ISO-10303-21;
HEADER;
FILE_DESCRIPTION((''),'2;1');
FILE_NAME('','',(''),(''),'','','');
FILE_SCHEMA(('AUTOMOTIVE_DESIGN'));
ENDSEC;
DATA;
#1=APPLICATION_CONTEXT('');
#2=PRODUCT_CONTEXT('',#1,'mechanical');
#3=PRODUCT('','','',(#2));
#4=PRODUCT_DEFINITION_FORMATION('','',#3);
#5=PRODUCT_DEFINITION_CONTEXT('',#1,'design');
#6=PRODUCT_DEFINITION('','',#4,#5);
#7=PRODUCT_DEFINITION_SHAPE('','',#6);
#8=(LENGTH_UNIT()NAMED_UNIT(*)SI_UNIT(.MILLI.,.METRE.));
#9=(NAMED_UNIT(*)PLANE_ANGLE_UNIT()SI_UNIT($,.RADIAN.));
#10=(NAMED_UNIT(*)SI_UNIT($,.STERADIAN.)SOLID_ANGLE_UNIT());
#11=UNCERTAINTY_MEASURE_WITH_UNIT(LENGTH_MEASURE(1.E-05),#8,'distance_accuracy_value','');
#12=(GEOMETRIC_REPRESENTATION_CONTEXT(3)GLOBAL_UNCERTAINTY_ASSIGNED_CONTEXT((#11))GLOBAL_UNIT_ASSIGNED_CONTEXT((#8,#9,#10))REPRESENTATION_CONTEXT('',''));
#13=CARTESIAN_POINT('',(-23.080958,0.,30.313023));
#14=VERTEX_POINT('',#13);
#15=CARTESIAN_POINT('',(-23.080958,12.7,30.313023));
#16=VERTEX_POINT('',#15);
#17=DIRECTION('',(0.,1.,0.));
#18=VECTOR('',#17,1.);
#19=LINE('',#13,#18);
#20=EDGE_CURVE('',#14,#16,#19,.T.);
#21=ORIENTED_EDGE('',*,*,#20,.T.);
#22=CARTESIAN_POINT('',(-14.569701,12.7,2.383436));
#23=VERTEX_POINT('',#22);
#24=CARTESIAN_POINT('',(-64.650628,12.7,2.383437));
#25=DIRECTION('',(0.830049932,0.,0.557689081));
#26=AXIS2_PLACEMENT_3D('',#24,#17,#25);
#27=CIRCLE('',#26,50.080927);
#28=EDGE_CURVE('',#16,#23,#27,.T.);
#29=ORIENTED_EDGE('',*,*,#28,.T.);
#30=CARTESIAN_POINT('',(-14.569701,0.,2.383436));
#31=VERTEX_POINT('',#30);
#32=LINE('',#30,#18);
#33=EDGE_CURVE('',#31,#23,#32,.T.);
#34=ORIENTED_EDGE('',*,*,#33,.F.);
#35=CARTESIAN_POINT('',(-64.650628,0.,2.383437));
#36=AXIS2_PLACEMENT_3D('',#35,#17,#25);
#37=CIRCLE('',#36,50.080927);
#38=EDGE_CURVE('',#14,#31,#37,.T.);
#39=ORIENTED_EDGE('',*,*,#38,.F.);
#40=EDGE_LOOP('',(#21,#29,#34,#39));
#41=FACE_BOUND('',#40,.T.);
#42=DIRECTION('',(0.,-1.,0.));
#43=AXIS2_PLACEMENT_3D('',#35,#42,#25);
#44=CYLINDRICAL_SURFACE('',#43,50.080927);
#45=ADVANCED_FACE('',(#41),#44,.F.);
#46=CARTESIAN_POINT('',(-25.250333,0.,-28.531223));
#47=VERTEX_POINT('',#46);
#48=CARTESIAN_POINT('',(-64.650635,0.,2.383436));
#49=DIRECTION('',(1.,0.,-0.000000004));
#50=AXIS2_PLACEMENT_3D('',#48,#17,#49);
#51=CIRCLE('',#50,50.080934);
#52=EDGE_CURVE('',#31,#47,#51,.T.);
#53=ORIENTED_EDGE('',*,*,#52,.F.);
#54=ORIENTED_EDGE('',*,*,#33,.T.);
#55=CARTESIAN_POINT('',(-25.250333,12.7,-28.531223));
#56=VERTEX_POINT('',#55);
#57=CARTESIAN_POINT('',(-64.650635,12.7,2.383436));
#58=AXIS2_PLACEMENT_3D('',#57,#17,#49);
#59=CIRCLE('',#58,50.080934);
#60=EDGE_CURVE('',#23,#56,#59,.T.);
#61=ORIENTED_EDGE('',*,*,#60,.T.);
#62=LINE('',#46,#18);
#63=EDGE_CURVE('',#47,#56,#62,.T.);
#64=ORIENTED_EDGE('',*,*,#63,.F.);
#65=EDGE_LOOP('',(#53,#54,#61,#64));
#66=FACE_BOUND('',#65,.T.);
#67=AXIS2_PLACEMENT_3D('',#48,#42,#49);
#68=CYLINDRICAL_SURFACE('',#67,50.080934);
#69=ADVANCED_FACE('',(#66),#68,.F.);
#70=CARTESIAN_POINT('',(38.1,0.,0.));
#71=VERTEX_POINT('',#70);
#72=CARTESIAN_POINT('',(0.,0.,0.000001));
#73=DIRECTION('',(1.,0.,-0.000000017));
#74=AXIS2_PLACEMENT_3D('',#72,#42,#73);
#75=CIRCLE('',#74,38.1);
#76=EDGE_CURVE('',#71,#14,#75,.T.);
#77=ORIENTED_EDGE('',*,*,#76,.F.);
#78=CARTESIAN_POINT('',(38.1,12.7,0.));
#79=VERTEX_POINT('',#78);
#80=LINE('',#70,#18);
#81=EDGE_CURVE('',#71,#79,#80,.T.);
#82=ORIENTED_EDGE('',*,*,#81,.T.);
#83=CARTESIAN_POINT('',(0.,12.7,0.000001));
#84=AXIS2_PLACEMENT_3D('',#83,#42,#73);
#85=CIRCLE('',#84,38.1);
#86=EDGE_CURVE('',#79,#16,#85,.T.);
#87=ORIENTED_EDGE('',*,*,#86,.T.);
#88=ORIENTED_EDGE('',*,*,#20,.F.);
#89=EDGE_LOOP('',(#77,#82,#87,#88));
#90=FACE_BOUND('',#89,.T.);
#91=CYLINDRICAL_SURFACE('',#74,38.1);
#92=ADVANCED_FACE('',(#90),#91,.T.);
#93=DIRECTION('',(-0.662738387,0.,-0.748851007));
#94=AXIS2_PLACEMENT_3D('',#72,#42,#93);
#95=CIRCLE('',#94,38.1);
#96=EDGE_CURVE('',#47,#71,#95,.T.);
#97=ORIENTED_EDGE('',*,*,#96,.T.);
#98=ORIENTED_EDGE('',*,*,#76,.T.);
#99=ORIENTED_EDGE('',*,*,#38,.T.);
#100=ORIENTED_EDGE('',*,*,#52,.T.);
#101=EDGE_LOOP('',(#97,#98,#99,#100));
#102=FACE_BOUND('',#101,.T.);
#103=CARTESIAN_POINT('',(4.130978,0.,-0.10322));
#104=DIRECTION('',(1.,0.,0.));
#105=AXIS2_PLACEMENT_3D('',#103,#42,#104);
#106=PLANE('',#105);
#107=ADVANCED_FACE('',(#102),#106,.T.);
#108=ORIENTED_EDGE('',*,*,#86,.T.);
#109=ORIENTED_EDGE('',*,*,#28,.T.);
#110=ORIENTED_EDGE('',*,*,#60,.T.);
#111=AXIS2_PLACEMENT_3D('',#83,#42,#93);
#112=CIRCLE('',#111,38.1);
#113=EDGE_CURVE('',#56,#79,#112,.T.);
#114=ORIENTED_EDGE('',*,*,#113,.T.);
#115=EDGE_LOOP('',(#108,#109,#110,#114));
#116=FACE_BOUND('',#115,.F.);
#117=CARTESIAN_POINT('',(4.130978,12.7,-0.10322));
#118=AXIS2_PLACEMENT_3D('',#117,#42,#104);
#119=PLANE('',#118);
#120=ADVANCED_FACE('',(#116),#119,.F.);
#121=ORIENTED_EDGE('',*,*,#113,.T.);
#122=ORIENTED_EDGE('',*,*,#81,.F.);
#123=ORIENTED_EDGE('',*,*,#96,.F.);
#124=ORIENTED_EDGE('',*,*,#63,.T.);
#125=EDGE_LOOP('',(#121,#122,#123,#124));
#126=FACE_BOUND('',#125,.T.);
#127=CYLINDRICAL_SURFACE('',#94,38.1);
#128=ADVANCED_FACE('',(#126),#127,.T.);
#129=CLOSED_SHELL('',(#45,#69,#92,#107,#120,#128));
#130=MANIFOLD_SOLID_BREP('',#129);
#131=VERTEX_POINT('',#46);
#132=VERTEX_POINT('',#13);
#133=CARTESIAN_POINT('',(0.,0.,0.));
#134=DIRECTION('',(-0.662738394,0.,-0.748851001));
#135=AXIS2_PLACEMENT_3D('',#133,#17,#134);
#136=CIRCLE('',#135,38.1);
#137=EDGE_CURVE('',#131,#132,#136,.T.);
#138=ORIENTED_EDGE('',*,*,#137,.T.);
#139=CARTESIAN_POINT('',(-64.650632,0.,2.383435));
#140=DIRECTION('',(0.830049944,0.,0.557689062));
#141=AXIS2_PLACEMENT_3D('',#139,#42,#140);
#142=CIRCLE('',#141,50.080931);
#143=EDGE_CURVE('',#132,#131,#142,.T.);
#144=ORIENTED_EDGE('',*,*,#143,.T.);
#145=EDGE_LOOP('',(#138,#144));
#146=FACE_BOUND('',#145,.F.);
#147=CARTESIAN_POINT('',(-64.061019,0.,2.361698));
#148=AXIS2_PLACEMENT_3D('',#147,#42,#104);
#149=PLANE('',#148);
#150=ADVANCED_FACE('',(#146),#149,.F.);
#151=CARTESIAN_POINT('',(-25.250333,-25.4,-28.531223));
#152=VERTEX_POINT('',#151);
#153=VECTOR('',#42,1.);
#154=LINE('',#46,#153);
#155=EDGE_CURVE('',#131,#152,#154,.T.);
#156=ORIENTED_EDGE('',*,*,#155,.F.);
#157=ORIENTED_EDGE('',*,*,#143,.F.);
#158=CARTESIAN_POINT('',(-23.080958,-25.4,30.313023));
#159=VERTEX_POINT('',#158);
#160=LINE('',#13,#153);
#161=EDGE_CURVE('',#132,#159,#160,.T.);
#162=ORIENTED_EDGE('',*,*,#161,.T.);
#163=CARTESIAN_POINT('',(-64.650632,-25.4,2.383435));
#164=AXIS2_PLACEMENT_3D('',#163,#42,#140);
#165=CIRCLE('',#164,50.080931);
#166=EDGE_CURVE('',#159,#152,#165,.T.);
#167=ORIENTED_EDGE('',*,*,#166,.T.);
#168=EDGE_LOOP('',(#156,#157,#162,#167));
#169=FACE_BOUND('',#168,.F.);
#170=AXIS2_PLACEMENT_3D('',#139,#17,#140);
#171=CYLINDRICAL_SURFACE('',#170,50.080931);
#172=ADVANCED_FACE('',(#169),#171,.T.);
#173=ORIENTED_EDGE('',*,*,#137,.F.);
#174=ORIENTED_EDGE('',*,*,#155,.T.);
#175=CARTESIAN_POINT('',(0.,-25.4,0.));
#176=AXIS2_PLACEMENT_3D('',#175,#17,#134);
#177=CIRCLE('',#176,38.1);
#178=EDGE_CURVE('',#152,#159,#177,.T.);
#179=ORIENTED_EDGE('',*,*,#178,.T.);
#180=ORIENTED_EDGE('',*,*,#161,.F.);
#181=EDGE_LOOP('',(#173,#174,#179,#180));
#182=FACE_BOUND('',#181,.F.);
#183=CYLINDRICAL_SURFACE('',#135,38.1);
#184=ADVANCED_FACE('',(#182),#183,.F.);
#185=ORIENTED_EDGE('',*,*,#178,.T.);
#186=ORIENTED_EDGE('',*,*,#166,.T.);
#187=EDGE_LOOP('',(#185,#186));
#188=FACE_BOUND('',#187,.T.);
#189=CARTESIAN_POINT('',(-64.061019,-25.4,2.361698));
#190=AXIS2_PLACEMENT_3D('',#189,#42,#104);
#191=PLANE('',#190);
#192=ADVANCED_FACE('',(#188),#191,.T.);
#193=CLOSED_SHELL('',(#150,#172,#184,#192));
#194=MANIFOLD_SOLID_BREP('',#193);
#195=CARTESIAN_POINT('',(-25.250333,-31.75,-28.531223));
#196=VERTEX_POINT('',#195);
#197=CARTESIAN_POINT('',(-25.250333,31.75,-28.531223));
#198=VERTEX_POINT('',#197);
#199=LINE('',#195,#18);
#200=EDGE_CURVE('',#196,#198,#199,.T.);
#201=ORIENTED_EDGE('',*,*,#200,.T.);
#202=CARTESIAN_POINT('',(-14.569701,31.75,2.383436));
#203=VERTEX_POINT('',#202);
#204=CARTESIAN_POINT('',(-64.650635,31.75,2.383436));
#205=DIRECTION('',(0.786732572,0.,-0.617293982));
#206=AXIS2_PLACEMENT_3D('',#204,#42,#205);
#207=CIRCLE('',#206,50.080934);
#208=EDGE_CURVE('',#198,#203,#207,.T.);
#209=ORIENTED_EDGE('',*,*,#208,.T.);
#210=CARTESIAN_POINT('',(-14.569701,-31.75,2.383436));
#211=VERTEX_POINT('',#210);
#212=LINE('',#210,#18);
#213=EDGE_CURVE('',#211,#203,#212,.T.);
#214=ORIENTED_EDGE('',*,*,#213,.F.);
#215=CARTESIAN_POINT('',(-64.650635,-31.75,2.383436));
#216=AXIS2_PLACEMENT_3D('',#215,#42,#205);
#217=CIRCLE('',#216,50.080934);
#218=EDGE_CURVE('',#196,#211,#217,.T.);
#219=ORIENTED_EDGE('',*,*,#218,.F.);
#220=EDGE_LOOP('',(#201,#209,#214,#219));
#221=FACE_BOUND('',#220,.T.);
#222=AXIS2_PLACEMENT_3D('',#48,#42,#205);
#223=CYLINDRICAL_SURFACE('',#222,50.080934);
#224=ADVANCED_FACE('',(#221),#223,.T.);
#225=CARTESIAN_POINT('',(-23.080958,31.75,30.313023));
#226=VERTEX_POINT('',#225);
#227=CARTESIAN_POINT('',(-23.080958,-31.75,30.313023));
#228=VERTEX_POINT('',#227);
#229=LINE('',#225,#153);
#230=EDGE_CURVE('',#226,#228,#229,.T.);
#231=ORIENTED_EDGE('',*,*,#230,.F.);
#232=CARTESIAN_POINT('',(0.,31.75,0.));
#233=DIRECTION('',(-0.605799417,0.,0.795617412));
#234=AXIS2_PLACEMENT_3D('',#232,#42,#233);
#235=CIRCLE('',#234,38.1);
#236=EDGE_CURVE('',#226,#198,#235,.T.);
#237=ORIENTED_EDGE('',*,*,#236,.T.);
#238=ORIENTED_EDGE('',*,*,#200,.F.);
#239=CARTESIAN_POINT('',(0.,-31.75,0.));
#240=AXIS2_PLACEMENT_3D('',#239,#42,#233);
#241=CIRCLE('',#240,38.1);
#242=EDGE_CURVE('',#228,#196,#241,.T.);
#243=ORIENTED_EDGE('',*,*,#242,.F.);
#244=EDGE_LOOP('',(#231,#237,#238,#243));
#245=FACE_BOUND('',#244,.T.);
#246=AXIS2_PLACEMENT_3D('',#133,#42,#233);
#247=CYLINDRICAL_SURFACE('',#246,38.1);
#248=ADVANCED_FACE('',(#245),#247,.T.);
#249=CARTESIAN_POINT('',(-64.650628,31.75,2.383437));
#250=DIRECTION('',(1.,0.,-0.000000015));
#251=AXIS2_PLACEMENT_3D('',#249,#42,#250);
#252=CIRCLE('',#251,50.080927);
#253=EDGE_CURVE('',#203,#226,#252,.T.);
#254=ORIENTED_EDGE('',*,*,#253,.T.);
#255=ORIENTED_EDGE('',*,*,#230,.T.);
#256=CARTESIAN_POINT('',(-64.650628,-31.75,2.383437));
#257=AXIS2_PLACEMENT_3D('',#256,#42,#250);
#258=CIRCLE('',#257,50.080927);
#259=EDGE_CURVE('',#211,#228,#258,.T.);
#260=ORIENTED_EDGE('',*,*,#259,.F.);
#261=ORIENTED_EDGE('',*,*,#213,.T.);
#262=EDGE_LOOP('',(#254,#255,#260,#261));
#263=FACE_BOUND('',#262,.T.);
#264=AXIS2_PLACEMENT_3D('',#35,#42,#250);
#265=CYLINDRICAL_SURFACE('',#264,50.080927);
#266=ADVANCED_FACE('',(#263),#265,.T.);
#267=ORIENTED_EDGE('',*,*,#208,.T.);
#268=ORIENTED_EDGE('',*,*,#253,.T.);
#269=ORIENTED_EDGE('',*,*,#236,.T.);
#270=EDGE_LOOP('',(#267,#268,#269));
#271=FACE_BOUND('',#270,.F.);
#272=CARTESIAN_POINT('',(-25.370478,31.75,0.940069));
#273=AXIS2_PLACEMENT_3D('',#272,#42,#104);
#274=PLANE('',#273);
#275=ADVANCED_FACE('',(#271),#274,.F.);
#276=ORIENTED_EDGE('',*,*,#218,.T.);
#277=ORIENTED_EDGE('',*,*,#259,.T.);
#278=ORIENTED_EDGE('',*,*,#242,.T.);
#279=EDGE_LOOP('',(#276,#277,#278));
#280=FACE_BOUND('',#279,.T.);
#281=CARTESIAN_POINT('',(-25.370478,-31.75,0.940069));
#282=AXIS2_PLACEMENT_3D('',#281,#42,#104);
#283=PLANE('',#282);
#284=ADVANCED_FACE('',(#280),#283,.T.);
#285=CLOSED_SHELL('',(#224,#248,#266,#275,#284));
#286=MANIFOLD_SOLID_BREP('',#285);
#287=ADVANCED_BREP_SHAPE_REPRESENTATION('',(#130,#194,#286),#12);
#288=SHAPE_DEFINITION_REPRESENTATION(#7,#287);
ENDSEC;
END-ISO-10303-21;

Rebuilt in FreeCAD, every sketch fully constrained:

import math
import FreeCAD as App
import Part
import Sketcher
from FreeCAD import Vector
Q = App.Units.Quantity

doc = App.newDocument("Part")
body = doc.addObject("PartDesign::Body", "Body")

sketch1 = doc.addObject("Sketcher::SketchObject", "Sketch")
body.addObject(sketch1)
sketch1.AttachmentSupport = (doc.XZ_Plane, [""])
sketch1.MapMode = "FlatFace"
sketch1.addGeometry(Part.ArcOfCircle(Part.Circle(Vector(0, 0, 0), Vector(0, 0, 1), 38), math.radians(127), math.radians(228)), False)
sketch1.addGeometry(Part.ArcOfCircle(Part.Circle(Vector(-65, 2, 0), Vector(0, 0, 1), 50), math.radians(34), math.radians(322)), False)
sketch1.addConstraint(Sketcher.Constraint("Coincident", 0, 1, 1, 1))
sketch1.addConstraint(Sketcher.Constraint("Coincident", 1, 2, 0, 2))
sketch1.addConstraint(Sketcher.Constraint("Coincident", 0, 3, -1, 1))
sketch1.addConstraint(Sketcher.Constraint("Radius", 0, Q("1.5 in")))
sketch1.addConstraint(Sketcher.Constraint("Radius", 1, 50.080931))
sketch1.addConstraint(Sketcher.Constraint("DistanceX", 1, 3, 1, 2, 39.400299))
sketch1.addConstraint(Sketcher.Constraint("DistanceX", 0, 1, -1, 1, 23.080958))
pad1 = doc.addObject("PartDesign::Pad", "Pad")
body.addObject(pad1)
pad1.Profile = sketch1
pad1.Length = Q("1 in")
body2 = doc.addObject("PartDesign::Body", "Body001")

sketch2 = doc.addObject("Sketcher::SketchObject", "Sketch001")
body2.addObject(sketch2)
sketch2.AttachmentSupport = (doc.getObject("XZ_Plane001"), [""])
sketch2.MapMode = "FlatFace"
sketch2.addGeometry(Part.ArcOfCircle(Part.Circle(Vector(0, 0, 0), Vector(0, 0, 1), 38), math.radians(-132), math.radians(0)), False)
sketch2.addGeometry(Part.ArcOfCircle(Part.Circle(Vector(0, 0, 0), Vector(0, 0, 1), 38), math.radians(0), math.radians(127)), False)
sketch2.addGeometry(Part.ArcOfCircle(Part.Circle(Vector(-65, 2, 0), Vector(0, 0, 1), 50), math.radians(0), math.radians(34)), False)
sketch2.addGeometry(Part.ArcOfCircle(Part.Circle(Vector(-65, 2, 0), Vector(0, 0, 1), 50), math.radians(-38), math.radians(0)), False)
sketch2.addConstraint(Sketcher.Constraint("Tangent", 0, 2, 1, 1))
sketch2.addConstraint(Sketcher.Constraint("Coincident", 1, 2, 2, 2))
sketch2.addConstraint(Sketcher.Constraint("Tangent", 2, 1, 3, 2))
sketch2.addConstraint(Sketcher.Constraint("Coincident", 3, 1, 0, 1))
sketch2.addConstraint(Sketcher.Constraint("Coincident", 0, 3, -1, 1))
sketch2.addConstraint(Sketcher.Constraint("Equal", 0, 1))
sketch2.addConstraint(Sketcher.Constraint("PointOnObject", 0, 2, -1))
sketch2.addConstraint(Sketcher.Constraint("Horizontal", 3, 3, 2, 1))
sketch2.addConstraint(Sketcher.Constraint("Radius", 0, Q("1.5 in")))
sketch2.addConstraint(Sketcher.Constraint("Radius", 2, 50.080927))
sketch2.addConstraint(Sketcher.Constraint("Radius", 3, 50.080934))
sketch2.addConstraint(Sketcher.Constraint("DistanceX", 2, 1, -1, 1, 14.569701))
sketch2.addConstraint(Sketcher.Constraint("DistanceX", 3, 3, 3, 1, 39.400302))
pad2 = doc.addObject("PartDesign::Pad", "Pad001")
body2.addObject(pad2)
pad2.Profile = sketch2
pad2.Length = Q("0.5 in")
pad2.Reversed = True
body3 = doc.addObject("PartDesign::Body", "Body002")

sketch3 = doc.addObject("Sketcher::SketchObject", "Sketch002")
body3.addObject(sketch3)
sketch3.AttachmentSupport = (doc.getObject("XZ_Plane002"), [""])
sketch3.MapMode = "FlatFace"
sketch3.addGeometry(Part.ArcOfCircle(Part.Circle(Vector(-65, 2, 0), Vector(0, 0, 1), 50), math.radians(0), math.radians(34)), False)
sketch3.addGeometry(Part.ArcOfCircle(Part.Circle(Vector(0, 0, 0), Vector(0, 0, 1), 38), math.radians(127), math.radians(228)), False)
sketch3.addGeometry(Part.ArcOfCircle(Part.Circle(Vector(-65, 2, 0), Vector(0, 0, 1), 50), math.radians(-38), math.radians(0)), False)
sketch3.addConstraint(Sketcher.Constraint("Coincident", 0, 2, 1, 1))
sketch3.addConstraint(Sketcher.Constraint("Coincident", 1, 2, 2, 1))
sketch3.addConstraint(Sketcher.Constraint("Tangent", 2, 2, 0, 1))
sketch3.addConstraint(Sketcher.Constraint("Coincident", 1, 3, -1, 1))
sketch3.addConstraint(Sketcher.Constraint("Horizontal", 0, 3, 2, 2))
sketch3.addConstraint(Sketcher.Constraint("Radius", 1, Q("1.5 in")))
sketch3.addConstraint(Sketcher.Constraint("Radius", 0, 50.080927))
sketch3.addConstraint(Sketcher.Constraint("Radius", 2, 50.080934))
sketch3.addConstraint(Sketcher.Constraint("DistanceX", 2, 2, -1, 1, 14.569701))
sketch3.addConstraint(Sketcher.Constraint("DistanceX", 2, 3, 1, 2, 39.400302))
pad3 = doc.addObject("PartDesign::Pad", "Pad002")
body3.addObject(pad3)
pad3.Profile = sketch3
pad3.Length = Q("2.5 in")
pad3.Midplane = True

doc.recompute()
